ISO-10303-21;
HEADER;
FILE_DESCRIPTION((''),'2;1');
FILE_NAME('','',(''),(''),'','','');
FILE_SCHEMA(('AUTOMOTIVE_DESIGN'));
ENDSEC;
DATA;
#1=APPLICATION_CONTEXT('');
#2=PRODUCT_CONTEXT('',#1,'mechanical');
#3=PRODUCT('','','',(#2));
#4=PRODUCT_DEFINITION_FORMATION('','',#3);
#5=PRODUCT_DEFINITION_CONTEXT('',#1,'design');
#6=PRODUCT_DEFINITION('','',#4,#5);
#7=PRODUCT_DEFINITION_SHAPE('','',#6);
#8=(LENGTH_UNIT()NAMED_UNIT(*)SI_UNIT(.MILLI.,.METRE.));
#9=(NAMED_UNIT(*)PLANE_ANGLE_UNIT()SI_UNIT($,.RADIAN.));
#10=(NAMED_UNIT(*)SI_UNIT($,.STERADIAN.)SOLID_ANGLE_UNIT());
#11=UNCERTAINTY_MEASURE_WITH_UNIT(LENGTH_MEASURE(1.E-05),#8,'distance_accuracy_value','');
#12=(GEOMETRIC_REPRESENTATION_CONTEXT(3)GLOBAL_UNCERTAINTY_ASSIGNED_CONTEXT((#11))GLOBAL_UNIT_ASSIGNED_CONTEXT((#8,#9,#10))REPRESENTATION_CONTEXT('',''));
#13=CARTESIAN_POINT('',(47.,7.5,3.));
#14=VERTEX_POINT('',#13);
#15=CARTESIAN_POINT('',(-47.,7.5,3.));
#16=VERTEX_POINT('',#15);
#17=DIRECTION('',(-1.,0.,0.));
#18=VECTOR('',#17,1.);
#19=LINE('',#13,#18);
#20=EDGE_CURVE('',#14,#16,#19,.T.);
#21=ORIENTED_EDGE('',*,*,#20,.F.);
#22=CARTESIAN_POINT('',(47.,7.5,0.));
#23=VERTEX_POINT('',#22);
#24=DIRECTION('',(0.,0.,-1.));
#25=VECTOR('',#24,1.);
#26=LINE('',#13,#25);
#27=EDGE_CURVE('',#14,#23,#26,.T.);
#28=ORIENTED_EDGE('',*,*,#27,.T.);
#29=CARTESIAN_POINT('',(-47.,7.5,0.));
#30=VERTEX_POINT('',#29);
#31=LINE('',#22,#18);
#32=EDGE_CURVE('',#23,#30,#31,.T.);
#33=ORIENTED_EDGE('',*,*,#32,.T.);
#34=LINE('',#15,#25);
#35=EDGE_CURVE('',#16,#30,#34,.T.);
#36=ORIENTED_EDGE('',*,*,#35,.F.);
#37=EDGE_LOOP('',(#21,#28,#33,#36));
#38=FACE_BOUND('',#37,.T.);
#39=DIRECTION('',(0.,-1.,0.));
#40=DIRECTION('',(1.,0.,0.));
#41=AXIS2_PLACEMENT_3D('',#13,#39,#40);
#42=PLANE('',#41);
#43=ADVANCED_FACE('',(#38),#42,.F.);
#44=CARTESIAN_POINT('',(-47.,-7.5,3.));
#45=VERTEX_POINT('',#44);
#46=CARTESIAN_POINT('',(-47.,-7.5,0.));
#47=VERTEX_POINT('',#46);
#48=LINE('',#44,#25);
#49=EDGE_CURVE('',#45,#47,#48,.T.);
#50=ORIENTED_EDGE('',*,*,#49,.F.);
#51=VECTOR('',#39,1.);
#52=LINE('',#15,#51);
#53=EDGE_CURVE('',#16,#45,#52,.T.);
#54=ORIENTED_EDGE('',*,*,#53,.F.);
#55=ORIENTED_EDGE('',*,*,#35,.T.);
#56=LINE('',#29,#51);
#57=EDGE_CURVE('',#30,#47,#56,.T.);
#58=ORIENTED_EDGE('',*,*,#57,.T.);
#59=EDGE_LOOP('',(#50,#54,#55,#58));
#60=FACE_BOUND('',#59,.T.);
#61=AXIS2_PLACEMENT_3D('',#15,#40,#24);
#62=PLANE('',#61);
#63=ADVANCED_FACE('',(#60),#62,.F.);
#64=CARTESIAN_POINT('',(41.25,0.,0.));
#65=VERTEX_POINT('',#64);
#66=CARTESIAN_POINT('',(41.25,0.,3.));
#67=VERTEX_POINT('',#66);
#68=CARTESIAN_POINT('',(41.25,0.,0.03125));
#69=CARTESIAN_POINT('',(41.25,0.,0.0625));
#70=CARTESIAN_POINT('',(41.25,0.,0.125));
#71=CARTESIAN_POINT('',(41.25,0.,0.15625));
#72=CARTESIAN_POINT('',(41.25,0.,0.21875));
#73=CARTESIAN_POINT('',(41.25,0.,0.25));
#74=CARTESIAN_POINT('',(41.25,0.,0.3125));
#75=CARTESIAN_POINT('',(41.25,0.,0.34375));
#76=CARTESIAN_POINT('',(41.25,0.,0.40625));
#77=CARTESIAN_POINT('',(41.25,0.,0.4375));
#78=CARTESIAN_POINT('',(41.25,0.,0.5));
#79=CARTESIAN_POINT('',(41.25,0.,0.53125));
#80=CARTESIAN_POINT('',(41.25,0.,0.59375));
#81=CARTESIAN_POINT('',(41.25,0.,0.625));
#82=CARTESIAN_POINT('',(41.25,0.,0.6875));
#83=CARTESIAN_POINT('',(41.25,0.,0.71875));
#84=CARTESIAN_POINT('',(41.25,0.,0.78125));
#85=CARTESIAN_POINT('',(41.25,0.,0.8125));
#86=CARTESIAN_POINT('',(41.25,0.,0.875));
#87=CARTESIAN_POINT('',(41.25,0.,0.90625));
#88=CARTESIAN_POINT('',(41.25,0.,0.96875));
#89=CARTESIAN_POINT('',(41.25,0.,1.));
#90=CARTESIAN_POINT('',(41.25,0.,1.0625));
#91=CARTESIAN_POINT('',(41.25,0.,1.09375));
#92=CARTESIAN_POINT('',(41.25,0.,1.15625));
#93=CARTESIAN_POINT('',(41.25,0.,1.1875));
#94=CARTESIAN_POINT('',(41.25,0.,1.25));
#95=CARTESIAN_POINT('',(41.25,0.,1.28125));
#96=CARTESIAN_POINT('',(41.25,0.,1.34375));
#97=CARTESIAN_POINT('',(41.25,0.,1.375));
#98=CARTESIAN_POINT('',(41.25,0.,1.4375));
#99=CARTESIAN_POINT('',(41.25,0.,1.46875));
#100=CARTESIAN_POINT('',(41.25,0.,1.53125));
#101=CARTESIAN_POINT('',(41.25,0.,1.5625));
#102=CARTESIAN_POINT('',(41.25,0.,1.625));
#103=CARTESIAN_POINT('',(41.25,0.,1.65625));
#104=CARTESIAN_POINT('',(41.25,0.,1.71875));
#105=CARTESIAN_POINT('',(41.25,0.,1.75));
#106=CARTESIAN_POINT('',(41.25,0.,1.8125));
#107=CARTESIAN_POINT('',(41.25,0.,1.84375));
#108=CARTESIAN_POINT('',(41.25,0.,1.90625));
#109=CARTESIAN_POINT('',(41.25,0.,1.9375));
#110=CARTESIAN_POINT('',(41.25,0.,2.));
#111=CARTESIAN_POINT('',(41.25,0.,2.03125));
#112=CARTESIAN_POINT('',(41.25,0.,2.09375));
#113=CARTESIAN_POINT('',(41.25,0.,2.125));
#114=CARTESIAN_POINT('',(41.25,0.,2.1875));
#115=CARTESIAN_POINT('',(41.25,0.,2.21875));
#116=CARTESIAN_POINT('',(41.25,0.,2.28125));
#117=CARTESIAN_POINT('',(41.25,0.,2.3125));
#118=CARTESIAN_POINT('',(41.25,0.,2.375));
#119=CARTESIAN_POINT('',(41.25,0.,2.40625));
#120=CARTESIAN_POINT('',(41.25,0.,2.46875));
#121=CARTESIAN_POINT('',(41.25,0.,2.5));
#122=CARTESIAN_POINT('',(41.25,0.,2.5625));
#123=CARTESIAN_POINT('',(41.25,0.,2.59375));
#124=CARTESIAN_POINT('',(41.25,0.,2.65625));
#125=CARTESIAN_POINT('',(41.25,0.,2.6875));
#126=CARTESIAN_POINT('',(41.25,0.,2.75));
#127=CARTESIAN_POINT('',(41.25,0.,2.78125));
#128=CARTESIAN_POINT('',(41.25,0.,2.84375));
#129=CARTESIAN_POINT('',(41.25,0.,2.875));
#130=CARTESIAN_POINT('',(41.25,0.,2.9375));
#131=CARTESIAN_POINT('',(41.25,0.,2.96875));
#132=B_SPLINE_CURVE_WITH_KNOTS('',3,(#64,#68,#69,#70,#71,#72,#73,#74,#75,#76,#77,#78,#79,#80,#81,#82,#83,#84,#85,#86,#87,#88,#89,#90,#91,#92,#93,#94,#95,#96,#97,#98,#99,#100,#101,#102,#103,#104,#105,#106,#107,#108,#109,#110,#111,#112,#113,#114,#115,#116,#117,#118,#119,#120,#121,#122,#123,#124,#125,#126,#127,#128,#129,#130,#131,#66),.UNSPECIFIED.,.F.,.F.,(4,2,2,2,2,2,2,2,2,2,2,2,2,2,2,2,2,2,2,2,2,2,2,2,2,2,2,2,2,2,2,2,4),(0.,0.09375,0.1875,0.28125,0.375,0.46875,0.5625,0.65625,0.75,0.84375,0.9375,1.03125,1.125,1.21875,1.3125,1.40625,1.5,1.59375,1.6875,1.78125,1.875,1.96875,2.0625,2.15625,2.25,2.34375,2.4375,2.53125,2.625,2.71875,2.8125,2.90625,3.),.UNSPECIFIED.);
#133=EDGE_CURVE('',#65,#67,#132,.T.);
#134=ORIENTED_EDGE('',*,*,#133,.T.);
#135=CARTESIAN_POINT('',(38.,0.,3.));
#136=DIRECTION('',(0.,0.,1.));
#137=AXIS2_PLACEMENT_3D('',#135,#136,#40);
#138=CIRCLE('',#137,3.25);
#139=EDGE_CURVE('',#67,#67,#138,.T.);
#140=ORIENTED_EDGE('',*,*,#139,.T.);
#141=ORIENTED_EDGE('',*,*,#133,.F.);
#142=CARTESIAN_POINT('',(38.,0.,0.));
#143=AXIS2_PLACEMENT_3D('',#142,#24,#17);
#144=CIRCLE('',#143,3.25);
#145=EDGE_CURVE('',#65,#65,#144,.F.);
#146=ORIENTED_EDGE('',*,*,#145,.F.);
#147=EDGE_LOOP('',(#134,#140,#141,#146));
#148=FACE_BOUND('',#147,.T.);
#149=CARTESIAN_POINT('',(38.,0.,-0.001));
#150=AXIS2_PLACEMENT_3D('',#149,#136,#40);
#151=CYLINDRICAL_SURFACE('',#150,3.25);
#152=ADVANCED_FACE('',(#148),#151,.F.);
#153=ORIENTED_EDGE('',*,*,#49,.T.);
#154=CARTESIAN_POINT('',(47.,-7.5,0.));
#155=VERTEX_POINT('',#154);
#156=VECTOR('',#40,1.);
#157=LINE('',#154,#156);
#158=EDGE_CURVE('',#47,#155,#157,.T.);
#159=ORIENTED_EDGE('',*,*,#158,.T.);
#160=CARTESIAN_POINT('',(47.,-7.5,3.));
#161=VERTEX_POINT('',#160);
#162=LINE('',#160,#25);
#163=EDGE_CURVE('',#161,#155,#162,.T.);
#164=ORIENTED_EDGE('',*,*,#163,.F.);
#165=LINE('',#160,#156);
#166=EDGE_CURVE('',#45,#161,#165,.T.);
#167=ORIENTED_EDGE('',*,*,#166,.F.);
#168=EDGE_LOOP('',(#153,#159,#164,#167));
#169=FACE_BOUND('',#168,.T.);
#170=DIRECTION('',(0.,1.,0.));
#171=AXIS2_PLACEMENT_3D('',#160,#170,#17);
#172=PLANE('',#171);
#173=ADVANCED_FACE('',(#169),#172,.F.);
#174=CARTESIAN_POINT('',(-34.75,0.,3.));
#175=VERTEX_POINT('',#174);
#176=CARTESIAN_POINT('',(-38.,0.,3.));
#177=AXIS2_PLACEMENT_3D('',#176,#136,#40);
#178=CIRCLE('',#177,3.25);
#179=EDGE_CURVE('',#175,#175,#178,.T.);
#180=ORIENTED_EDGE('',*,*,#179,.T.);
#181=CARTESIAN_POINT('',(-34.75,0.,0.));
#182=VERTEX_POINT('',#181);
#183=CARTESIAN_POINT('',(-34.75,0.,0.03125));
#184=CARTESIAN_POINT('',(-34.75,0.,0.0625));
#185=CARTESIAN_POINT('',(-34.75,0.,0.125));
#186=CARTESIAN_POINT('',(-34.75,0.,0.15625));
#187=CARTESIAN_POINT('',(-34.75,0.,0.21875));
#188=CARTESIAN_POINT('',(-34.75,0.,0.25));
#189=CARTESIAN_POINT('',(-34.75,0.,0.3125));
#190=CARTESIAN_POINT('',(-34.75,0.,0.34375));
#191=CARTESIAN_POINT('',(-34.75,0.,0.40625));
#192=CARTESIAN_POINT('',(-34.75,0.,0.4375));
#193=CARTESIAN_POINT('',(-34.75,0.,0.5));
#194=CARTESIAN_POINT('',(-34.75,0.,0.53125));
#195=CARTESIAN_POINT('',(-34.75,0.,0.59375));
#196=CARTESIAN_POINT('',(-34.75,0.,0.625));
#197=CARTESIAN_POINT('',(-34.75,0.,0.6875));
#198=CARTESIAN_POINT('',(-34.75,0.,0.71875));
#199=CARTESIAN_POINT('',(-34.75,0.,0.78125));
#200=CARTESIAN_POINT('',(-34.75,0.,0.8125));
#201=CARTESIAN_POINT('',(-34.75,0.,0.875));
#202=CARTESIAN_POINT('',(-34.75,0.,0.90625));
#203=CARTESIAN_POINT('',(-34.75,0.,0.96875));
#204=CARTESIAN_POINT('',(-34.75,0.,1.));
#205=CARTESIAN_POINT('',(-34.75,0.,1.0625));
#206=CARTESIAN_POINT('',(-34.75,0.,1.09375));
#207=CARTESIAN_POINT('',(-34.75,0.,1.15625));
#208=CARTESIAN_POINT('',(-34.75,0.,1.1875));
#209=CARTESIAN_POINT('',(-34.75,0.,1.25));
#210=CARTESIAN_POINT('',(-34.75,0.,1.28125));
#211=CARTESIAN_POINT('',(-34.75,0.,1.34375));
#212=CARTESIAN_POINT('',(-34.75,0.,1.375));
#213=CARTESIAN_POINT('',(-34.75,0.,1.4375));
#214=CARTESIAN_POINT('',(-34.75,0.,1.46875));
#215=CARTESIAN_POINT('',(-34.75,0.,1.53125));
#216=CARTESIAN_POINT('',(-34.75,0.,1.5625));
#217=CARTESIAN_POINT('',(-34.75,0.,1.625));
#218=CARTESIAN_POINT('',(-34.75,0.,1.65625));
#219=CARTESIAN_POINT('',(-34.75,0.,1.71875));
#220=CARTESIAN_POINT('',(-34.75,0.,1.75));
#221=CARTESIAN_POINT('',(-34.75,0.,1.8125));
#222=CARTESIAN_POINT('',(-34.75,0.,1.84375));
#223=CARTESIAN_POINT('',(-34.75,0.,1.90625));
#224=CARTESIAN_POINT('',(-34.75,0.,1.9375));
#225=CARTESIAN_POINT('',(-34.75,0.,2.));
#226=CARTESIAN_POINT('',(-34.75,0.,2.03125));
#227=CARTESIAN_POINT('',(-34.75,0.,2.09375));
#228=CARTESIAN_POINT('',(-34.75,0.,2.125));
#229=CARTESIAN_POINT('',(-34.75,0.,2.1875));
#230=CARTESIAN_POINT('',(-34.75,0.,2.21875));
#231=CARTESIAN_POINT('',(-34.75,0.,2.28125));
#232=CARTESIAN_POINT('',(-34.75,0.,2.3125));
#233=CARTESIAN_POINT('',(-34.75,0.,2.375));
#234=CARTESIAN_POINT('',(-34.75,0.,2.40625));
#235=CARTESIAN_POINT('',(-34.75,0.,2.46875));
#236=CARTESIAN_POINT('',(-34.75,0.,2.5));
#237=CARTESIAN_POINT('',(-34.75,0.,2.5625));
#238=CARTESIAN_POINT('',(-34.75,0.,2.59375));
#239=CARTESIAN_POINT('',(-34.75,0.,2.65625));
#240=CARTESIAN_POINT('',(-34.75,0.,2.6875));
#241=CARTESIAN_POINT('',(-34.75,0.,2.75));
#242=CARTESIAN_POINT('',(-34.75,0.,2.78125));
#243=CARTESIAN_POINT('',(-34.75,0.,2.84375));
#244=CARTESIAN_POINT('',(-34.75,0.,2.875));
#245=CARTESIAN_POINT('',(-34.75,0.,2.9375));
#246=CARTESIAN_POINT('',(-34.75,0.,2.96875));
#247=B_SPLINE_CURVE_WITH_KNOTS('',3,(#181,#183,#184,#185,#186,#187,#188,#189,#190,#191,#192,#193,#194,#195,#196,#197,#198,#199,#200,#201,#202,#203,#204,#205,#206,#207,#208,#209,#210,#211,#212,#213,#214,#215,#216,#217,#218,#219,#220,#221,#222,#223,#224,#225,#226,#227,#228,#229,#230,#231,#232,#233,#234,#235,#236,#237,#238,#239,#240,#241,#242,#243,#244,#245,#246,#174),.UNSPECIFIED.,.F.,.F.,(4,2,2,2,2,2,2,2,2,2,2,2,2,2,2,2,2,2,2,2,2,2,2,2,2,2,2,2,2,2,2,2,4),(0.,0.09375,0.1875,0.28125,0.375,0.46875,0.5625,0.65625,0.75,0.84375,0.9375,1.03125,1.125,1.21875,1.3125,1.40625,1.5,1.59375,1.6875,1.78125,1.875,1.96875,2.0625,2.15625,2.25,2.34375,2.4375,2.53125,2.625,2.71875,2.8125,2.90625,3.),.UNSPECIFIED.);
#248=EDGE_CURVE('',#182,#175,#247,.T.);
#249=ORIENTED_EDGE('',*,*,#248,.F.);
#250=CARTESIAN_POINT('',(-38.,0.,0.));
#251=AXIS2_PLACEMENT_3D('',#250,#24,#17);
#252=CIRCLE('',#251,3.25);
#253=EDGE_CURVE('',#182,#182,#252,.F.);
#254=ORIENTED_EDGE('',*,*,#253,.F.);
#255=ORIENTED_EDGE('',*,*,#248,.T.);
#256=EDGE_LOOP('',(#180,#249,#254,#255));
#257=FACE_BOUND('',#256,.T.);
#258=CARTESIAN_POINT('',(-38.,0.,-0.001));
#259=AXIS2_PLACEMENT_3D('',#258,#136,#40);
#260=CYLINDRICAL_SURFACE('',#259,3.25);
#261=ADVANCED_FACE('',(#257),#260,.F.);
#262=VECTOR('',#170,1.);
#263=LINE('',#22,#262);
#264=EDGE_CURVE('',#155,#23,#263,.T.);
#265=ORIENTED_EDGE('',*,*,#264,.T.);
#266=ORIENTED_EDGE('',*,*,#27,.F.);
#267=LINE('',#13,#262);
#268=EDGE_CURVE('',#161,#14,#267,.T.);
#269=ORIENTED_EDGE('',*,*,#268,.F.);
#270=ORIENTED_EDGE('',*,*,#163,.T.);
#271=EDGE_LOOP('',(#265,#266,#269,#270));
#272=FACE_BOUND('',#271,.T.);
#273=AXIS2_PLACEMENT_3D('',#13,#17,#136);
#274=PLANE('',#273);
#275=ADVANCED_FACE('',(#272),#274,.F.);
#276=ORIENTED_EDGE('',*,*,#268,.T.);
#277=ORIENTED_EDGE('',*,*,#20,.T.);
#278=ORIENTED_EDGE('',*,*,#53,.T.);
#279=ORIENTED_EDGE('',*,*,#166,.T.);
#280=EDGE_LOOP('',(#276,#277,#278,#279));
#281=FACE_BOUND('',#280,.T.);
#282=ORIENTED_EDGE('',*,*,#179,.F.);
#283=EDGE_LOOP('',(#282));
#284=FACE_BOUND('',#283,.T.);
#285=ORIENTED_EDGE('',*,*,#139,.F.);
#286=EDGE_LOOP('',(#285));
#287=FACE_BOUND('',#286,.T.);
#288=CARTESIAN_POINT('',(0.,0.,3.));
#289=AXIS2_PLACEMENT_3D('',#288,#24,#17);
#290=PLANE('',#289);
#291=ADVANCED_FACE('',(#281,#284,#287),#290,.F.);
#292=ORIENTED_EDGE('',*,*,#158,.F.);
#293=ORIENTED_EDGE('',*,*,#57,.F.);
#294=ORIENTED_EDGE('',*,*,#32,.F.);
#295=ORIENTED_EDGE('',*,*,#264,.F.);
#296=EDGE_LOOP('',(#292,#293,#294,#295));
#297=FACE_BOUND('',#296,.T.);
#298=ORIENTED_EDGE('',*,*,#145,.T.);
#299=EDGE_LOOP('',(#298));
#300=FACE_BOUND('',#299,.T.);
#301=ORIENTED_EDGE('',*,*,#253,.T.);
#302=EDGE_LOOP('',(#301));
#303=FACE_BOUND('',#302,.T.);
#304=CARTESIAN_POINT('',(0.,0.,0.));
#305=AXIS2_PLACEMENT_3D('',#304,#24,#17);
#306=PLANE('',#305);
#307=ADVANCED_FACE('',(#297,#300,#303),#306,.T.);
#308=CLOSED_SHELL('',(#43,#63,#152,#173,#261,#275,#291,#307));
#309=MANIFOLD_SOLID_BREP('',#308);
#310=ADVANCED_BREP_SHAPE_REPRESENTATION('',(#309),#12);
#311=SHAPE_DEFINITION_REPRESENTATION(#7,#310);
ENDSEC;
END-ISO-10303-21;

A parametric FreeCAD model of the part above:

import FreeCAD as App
import Part
import Sketcher
from FreeCAD import Vector
Q = App.Units.Quantity

doc = App.newDocument("Part")
body = doc.addObject("PartDesign::Body", "Body")

sketch1 = body.newObject("Sketcher::SketchObject", "Sketch")
sketch1.AttachmentSupport = (doc.getObject("XY_Plane"), [""])
sketch1.MapMode = "FlatFace"
sketch1.addGeometry([
    Part.LineSegment(Vector(-47, 8, 0), Vector(-47, -8, 0)),
    Part.LineSegment(Vector(-47, -8, 0), Vector(47, -8, 0)),
    Part.LineSegment(Vector(47, -8, 0), Vector(47, 8, 0)),
    Part.LineSegment(Vector(47, 8, 0), Vector(-47, 8, 0)),
], False)
sketch1.addConstraint([
    Sketcher.Constraint("Coincident", 0, 2, 1, 1),
    Sketcher.Constraint("Coincident", 1, 2, 2, 1),
    Sketcher.Constraint("Coincident", 2, 2, 3, 1),
    Sketcher.Constraint("Coincident", 3, 2, 0, 1),
    Sketcher.Constraint("Vertical", 0),
    Sketcher.Constraint("Horizontal", 1),
    Sketcher.Constraint("Vertical", 2),
    Sketcher.Constraint("Horizontal", 3),
    Sketcher.Constraint("Symmetric", 0, 2, 2, 2, -1, 1),
    Sketcher.Constraint("DistanceX", 1, 1, 1, 2, Q("94 mm")),
    Sketcher.Constraint("DistanceY", 0, 2, 0, 1, Q("15 mm")),
])
pad1 = body.newObject("PartDesign::Pad", "Pad")
pad1.Profile = sketch1
pad1.Length = 3

sketch2 = body.newObject("Sketcher::SketchObject", "Sketch001")
sketch2.AttachmentSupport = (doc.getObject("XY_Plane"), [""])
sketch2.MapMode = "FlatFace"
sketch2.AttachmentOffset = App.Placement(Vector(0, 0, 3), App.Rotation())
sketch2.addGeometry(Part.Circle(Vector(-38, 0, 0), Vector(0, 0, 1), 3.2), False)
sketch2.addConstraint([
    Sketcher.Constraint("PointOnObject", 0, 3, -1),
    Sketcher.Constraint("Diameter", 0, Q("6.5 mm")),
    Sketcher.Constraint("DistanceX", 0, 3, -1, 1, Q("38 mm")),
])
pocket1 = body.newObject("PartDesign::Pocket", "Pocket")
pocket1.Profile = sketch2
pocket1.Type = "UpToFirst"

sketch3 = body.newObject("Sketcher::SketchObject", "Sketch002")
sketch3.AttachmentSupport = (doc.getObject("XY_Plane"), [""])
sketch3.MapMode = "FlatFace"
sketch3.AttachmentOffset = App.Placement(Vector(0, 0, 3), App.Rotation())
sketch3.addGeometry(Part.Circle(Vector(38, 0, 0), Vector(0, 0, 1), 3.2), False)
sketch3.addConstraint([
    Sketcher.Constraint("PointOnObject", 0, 3, -1),
    Sketcher.Constraint("Diameter", 0, Q("6.5 mm")),
    Sketcher.Constraint("DistanceX", -1, 1, 0, 3, Q("38 mm")),
])
pocket2 = body.newObject("PartDesign::Pocket", "Pocket001")
pocket2.Profile = sketch3
pocket2.Type = "UpToFirst"

doc.recompute()
